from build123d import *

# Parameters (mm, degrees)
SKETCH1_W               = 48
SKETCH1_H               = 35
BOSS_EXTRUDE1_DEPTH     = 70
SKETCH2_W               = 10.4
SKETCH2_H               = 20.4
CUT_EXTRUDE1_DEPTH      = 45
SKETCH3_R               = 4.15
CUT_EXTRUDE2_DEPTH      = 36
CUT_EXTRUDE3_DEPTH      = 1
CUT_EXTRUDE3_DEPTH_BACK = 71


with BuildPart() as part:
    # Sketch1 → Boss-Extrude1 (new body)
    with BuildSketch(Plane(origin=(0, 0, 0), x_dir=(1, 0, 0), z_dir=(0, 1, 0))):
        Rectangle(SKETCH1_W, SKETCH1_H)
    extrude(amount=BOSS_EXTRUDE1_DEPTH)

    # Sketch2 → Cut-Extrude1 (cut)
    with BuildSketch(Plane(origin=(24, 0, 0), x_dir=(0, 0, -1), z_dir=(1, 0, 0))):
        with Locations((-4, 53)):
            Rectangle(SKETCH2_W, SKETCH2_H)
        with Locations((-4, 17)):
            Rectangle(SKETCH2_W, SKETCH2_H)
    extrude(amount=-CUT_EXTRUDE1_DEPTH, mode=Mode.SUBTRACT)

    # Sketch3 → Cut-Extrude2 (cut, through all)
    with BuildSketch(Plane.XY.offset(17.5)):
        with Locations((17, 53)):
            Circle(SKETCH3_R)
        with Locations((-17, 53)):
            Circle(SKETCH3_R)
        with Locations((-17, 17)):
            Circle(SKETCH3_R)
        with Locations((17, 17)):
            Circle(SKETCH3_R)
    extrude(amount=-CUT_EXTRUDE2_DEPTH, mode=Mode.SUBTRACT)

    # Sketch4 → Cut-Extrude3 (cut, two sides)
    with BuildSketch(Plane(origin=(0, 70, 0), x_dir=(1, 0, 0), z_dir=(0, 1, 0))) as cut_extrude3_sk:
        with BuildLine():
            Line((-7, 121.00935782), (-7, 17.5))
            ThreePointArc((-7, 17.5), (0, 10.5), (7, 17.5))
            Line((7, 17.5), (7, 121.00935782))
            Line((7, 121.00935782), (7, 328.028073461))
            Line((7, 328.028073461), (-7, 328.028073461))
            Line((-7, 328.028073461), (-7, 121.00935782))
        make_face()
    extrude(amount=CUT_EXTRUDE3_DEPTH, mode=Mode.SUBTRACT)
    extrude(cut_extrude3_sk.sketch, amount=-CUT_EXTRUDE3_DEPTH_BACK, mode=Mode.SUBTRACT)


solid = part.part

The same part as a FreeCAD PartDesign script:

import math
import FreeCAD as App
import Part
import Sketcher
from FreeCAD import Vector

doc = App.newDocument("Part")
body = doc.addObject("PartDesign::Body", "Body")

sketch1 = doc.addObject("Sketcher::SketchObject", "Sketch")
body.addObject(sketch1)
sketch1.AttachmentSupport = (doc.XZ_Plane, [""])
sketch1.MapMode = "FlatFace"
sketch1.addGeometry([
    Part.LineSegment(Vector(-24, -18, 0), Vector(-24, 18, 0)),
    Part.LineSegment(Vector(-24, 18, 0), Vector(24, 18, 0)),
    Part.LineSegment(Vector(24, 18, 0), Vector(24, -18, 0)),
    Part.LineSegment(Vector(24, -18, 0), Vector(-24, -18, 0)),
], False)
sketch1.addConstraint([
    Sketcher.Constraint("Coincident", 0, 2, 1, 1),
    Sketcher.Constraint("Coincident", 1, 2, 2, 1),
    Sketcher.Constraint("Coincident", 2, 2, 3, 1),
    Sketcher.Constraint("Coincident", 3, 2, 0, 1),
    Sketcher.Constraint("Vertical", 0),
    Sketcher.Constraint("Horizontal", 1),
    Sketcher.Constraint("Vertical", 2),
    Sketcher.Constraint("Horizontal", 3),
    Sketcher.Constraint("Symmetric", 0, 2, 2, 2, -1, 1),
    Sketcher.Constraint("DistanceX", 1, 1, 1, 2, 48.0),
    Sketcher.Constraint("DistanceY", 0, 1, 0, 2, 35.0),
])
pad1 = doc.addObject("PartDesign::Pad", "Pad")
body.addObject(pad1)
pad1.Profile = sketch1
pad1.Length = 70
pad1.Reversed = True

sketch2 = doc.addObject("Sketcher::SketchObject", "Sketch001")
body.addObject(sketch2)
sketch2.AttachmentSupport = (doc.YZ_Plane, [""])
sketch2.MapMode = "FlatFace"
sketch2.AttachmentOffset = App.Placement(Vector(0, 0, 24), App.Rotation())
sketch2.addGeometry([
    Part.LineSegment(Vector(63, 9, 0), Vector(43, 9, 0)),
    Part.LineSegment(Vector(43, 9, 0), Vector(43, -1, 0)),
    Part.LineSegment(Vector(43, -1, 0), Vector(63, -1, 0)),
    Part.LineSegment(Vector(63, -1, 0), Vector(63, 9, 0)),
    Part.LineSegment(Vector(27, 9, 0), Vector(7, 9, 0)),
    Part.LineSegment(Vector(7, 9, 0), Vector(7, -1, 0)),
    Part.LineSegment(Vector(7, -1, 0), Vector(27, -1, 0)),
    Part.LineSegment(Vector(27, -1, 0), Vector(27, 9, 0)),
], False)
sketch2.addConstraint([
    Sketcher.Constraint("Coincident", 0, 2, 1, 1),
    Sketcher.Constraint("Coincident", 1, 2, 2, 1),
    Sketcher.Constraint("Coincident", 2, 2, 3, 1),
    Sketcher.Constraint("Coincident", 3, 2, 0, 1),
    Sketcher.Constraint("Coincident", 4, 2, 5, 1),
    Sketcher.Constraint("Coincident", 5, 2, 6, 1),
    Sketcher.Constraint("Coincident", 6, 2, 7, 1),
    Sketcher.Constraint("Coincident", 7, 2, 4, 1),
    Sketcher.Constraint("Horizontal", 0),
    Sketcher.Constraint("Vertical", 1),
    Sketcher.Constraint("Horizontal", 2),
    Sketcher.Constraint("Vertical", 3),
    Sketcher.Constraint("Horizontal", 4),
    Sketcher.Constraint("Vertical", 5),
    Sketcher.Constraint("Horizontal", 6),
    Sketcher.Constraint("Vertical", 7),
    Sketcher.Constraint("Horizontal", 3, 2, 4, 2),
    Sketcher.Constraint("Horizontal", 2, 2, 5, 2),
    Sketcher.Constraint("Equal", 2, 4),
    Sketcher.Constraint("DistanceX", 0, 2, 0, 1, 20.4),
    Sketcher.Constraint("DistanceY", 1, 2, 1, 1, 10.4),
    Sketcher.Constraint("DistanceX", 4, 2, 0, 2, 36.0),
    Sketcher.Constraint("DistanceX", -1, 1, 0, 2, 42.8),
    Sketcher.Constraint("DistanceY", -1, 1, 0, 2, 9.2),
])
pocket1 = doc.addObject("PartDesign::Pocket", "Pocket")
body.addObject(pocket1)
pocket1.Profile = sketch2
pocket1.Length = 45

sketch3 = doc.addObject("Sketcher::SketchObject", "Sketch002")
body.addObject(sketch3)
sketch3.AttachmentSupport = (doc.XY_Plane, [""])
sketch3.MapMode = "FlatFace"
sketch3.AttachmentOffset = App.Placement(Vector(0, 0, 17.5), App.Rotation())
sketch3.addGeometry([
    Part.Circle(Vector(17, 53, 0), Vector(0, 0, 1), 4.2),
    Part.Circle(Vector(-17, 53, 0), Vector(0, 0, 1), 4.2),
    Part.Circle(Vector(-17, 17, 0), Vector(0, 0, 1), 4.2),
    Part.Circle(Vector(17, 17, 0), Vector(0, 0, 1), 4.2),
], False)
sketch3.addConstraint([
    Sketcher.Constraint("Equal", 0, 1),
    Sketcher.Constraint("Equal", 1, 2),
    Sketcher.Constraint("Equal", 2, 3),
    Sketcher.Constraint("Symmetric", 0, 3, 1, 3, -2),
    Sketcher.Constraint("Symmetric", 2, 3, 3, 3, -2),
    Sketcher.Constraint("Vertical", 1, 3, 2, 3),
    Sketcher.Constraint("Diameter", 0, 8.3),
    Sketcher.Constraint("DistanceX", -1, 1, 0, 3, 17.0),
    Sketcher.Constraint("DistanceY", -1, 1, 0, 3, 53.0),
    Sketcher.Constraint("DistanceY", -1, 1, 2, 3, 17.0),
])
pocket2 = doc.addObject("PartDesign::Pocket", "Pocket001")
body.addObject(pocket2)
pocket2.Profile = sketch3
pocket2.Type = "ThroughAll"

sketch4 = doc.addObject("Sketcher::SketchObject", "Sketch003")
body.addObject(sketch4)
sketch4.AttachmentSupport = (doc.XZ_Plane, [""])
sketch4.MapMode = "FlatFace"
sketch4.AttachmentOffset = App.Placement(Vector(0, 0, -70), App.Rotation())
sketch4.addGeometry([
    Part.ArcOfCircle(Part.Circle(Vector(0, -18, 0), Vector(0, 0, 1), 7), math.radians(0), math.radians(180)),
    Part.LineSegment(Vector(7, -18, 0), Vector(7, -328, 0)),
    Part.LineSegment(Vector(7, -328, 0), Vector(-7, -328, 0)),
    Part.LineSegment(Vector(-7, -328, 0), Vector(-7, -18, 0)),
], False)
sketch4.addConstraint([
    Sketcher.Constraint("Tangent", 0, 1, 1, 1),
    Sketcher.Constraint("Coincident", 1, 2, 2, 1),
    Sketcher.Constraint("Coincident", 2, 2, 3, 1),
    Sketcher.Constraint("Tangent", 3, 2, 0, 2),
    Sketcher.Constraint("Vertical", 1),
    Sketcher.Constraint("Horizontal", 2),
    Sketcher.Constraint("Vertical", 3),
    Sketcher.Constraint("PointOnObject", 0, 3, -2),
    Sketcher.Constraint("Radius", 0, 7.0),
    Sketcher.Constraint("DistanceY", 0, 3, -1, 1, 17.5),
    Sketcher.Constraint("DistanceY", 1, 2, 1, 1, 310.528073),
])
pocket3 = doc.addObject("PartDesign::Pocket", "Pocket002")
body.addObject(pocket3)
pocket3.Profile = sketch4
pocket3.Type = "ThroughAll"
pocket3.Midplane = True

doc.recompute()
